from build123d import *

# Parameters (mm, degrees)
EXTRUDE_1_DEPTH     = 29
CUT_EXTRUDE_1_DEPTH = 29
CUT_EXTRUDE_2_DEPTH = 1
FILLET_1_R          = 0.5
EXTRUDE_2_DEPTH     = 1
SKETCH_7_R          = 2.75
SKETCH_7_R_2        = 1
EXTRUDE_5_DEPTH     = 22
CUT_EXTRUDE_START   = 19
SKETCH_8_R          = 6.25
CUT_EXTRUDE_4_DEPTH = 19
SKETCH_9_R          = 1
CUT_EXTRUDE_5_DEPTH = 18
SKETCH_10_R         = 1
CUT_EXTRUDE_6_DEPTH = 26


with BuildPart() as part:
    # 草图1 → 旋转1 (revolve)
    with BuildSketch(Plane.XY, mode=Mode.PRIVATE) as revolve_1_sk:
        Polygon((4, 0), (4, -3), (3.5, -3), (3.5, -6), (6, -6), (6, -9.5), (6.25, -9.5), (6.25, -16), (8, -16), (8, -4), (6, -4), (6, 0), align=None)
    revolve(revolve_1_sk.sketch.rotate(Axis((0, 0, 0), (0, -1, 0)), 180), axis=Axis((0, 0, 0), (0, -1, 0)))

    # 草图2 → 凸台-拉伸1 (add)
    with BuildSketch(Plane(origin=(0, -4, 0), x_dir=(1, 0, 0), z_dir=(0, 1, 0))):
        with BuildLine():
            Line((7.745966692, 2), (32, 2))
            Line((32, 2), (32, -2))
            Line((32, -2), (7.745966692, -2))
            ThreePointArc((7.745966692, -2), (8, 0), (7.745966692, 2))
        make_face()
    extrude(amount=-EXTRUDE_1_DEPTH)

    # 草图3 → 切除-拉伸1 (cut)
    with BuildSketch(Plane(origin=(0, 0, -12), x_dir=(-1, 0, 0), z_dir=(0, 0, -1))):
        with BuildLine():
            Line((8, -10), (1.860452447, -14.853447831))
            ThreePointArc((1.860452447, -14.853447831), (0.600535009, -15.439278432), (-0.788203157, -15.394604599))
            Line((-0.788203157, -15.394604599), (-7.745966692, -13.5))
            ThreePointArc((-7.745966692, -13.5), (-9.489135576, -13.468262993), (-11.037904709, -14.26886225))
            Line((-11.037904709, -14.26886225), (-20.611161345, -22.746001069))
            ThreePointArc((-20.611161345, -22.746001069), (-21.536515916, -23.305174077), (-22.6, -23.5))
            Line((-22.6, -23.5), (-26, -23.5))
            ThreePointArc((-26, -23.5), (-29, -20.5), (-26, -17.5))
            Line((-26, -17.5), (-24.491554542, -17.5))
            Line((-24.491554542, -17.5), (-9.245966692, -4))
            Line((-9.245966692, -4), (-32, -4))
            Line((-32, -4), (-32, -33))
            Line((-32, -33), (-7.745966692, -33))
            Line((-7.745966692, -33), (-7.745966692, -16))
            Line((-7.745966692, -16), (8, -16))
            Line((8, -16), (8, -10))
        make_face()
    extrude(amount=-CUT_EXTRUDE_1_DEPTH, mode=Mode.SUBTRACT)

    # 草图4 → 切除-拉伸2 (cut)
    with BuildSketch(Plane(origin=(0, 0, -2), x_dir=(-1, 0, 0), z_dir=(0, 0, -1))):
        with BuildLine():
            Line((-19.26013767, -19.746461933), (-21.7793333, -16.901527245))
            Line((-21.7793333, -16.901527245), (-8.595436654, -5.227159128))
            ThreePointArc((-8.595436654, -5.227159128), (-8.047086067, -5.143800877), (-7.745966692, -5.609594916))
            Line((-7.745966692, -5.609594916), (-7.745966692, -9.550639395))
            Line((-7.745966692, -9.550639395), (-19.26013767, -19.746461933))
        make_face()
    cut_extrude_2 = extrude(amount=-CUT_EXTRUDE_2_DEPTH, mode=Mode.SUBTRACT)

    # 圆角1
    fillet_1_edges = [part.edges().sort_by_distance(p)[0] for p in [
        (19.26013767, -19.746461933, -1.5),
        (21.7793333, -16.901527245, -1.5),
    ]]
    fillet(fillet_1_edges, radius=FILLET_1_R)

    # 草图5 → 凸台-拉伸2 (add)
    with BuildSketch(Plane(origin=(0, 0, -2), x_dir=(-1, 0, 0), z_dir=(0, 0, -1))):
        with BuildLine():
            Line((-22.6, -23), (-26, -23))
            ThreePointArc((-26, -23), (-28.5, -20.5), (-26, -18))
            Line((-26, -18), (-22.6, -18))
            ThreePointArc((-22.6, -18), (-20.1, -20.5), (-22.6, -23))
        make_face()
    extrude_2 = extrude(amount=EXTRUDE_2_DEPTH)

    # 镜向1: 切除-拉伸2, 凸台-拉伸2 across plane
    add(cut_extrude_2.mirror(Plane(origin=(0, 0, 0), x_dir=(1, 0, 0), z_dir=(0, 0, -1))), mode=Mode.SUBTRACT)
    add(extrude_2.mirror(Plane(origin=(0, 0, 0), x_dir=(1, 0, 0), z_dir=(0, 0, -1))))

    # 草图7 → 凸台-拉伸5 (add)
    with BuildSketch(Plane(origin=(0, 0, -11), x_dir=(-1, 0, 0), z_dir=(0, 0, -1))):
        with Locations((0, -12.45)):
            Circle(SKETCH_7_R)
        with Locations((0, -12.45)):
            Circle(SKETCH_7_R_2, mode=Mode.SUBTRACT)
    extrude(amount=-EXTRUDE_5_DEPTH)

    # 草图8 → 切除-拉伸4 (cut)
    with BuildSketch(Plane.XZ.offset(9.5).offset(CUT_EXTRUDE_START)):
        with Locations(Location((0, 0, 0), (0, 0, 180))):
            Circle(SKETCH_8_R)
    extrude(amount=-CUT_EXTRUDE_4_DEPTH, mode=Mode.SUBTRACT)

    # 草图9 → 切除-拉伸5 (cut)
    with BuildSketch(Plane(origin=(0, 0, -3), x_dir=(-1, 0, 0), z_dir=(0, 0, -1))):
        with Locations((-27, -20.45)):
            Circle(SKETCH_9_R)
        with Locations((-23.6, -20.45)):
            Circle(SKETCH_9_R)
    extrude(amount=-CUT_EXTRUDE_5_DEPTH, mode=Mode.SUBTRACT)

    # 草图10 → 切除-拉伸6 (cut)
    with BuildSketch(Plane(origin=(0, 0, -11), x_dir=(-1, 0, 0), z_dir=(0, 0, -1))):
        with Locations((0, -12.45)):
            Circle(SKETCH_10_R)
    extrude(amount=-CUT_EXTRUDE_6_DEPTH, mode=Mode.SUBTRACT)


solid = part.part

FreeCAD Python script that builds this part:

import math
import FreeCAD as App
import Part
import Sketcher
Q = App.Units.Quantity


def edges_at(feature, points):
    """Names of the edges that pass closest to the given points."""
    edges = feature.Shape.Edges
    near = lambda p: min(range(len(edges)), key=lambda i: edges[i].distToShape(Part.Vertex(*p))[0])
    return sorted({f"Edge{near(p) + 1}" for p in points})


def add_polygon(sketch, points):
    """Adds a closed chain of lines whose ends are joined by coincident constraints."""
    first, n = sketch.GeometryCount, len(points)
    for a, b in zip(points, points[1:] + points[:1]):
        sketch.addGeometry(Part.LineSegment(App.Vector(*a, 0), App.Vector(*b, 0)), False)
    for i in range(n):
        sketch.addConstraint(Sketcher.Constraint("Coincident", first + i, 2, first + (i + 1) % n, 1))

doc = App.newDocument("Part")
body = doc.addObject("PartDesign::Body", "Body")

# Sketch on XY plane
sketch1 = doc.addObject("Sketcher::SketchObject", "Sketch")
body.addObject(sketch1)
sketch1.AttachmentSupport = (doc.XY_Plane, [""])
sketch1.MapMode = "FlatFace"
add_polygon(sketch1, [(4, 0), (4, -3), (3.5, -3), (3.5, -6), (6, -6), (6, -9.5), (6.25, -9.5), (6.25, -16), (8, -16), (8, -4), (6, -4), (6, 0)])  # lines 0-11
sketch1.addConstraint([
    Sketcher.Constraint("Vertical", 0),
    Sketcher.Constraint("Horizontal", 1),
    Sketcher.Constraint("Vertical", 2),
    Sketcher.Constraint("Horizontal", 3),
    Sketcher.Constraint("Vertical", 4),
    Sketcher.Constraint("Horizontal", 5),
    Sketcher.Constraint("Vertical", 6),
    Sketcher.Constraint("Horizontal", 7),
    Sketcher.Constraint("Vertical", 8),
    Sketcher.Constraint("Horizontal", 9),
    Sketcher.Constraint("Vertical", 10),
    Sketcher.Constraint("Horizontal", 11),
    Sketcher.Constraint("PointOnObject", 10, 2, -1),
    Sketcher.Constraint("Vertical", 4, 2, 9, 2),
    Sketcher.Constraint("Equal", 9, 11),
    Sketcher.Constraint("Equal", 0, 2),
    Sketcher.Constraint("DistanceX", 9, 2, 9, 1, Q("2 mm")),
    Sketcher.Constraint("DistanceY", 0, 2, 0, 1, Q("3 mm")),
    Sketcher.Constraint("DistanceY", 8, 1, 8, 2, Q("12 mm")),
    Sketcher.Constraint("DistanceY", 10, 1, 10, 2, Q("4 mm")),
    Sketcher.Constraint("DistanceX", 1, 2, 1, 1, Q("0.5 mm")),
    Sketcher.Constraint("DistanceY", 4, 2, 4, 1, Q("3.5 mm")),
    Sketcher.Constraint("DistanceX", -1, 1, 0, 2, Q("4 mm")),
    Sketcher.Constraint("DistanceX", 5, 1, 5, 2, Q("0.25 mm")),
])
revolution = doc.addObject("PartDesign::Revolution", "Revolution")
body.addObject(revolution)
revolution.Profile = sketch1
revolution.ReferenceAxis = (sketch1, ["V_Axis"])
revolution.Angle = 360

# Sketch on XZ plane
sketch2 = doc.addObject("Sketcher::SketchObject", "Sketch001")
body.addObject(sketch2)
sketch2.AttachmentSupport = (doc.XZ_Plane, [""])
sketch2.MapMode = "FlatFace"
sketch2.AttachmentOffset = App.Placement(App.Vector(0, 0, 4), App.Rotation())
sketch2.addGeometry([
    Part.LineSegment(App.Vector(32, -2, 0), App.Vector(7.7, -2, 0)),
    Part.ArcOfCircle(Part.Circle(App.Vector(0, 0, 0), App.Vector(0, 0, 1), 8), math.radians(-14), math.radians(14)),
    Part.LineSegment(App.Vector(7.7, 2, 0), App.Vector(32, 2, 0)),
    Part.LineSegment(App.Vector(32, 2, 0), App.Vector(32, -2, 0)),
], False)
sketch2.addConstraint([
    Sketcher.Constraint("Coincident", 0, 2, 1, 1),
    Sketcher.Constraint("Coincident", 1, 2, 2, 1),
    Sketcher.Constraint("Coincident", 2, 2, 3, 1),
    Sketcher.Constraint("Coincident", 3, 2, 0, 1),
    Sketcher.Constraint("Horizontal", 0),
    Sketcher.Constraint("Horizontal", 2),
    Sketcher.Constraint("Vertical", 3),
    Sketcher.Constraint("Coincident", 1, 3, -1, 1),
    Sketcher.Constraint("Vertical", 0, 2, 1, 2),
    Sketcher.Constraint("Radius", 1, Q("8 mm")),
    Sketcher.Constraint("DistanceY", 3, 2, 3, 1, Q("4 mm")),
    Sketcher.Constraint("DistanceX", -1, 1, 2, 2, Q("32 mm")),
])
pad1 = doc.addObject("PartDesign::Pad", "Pad")
body.addObject(pad1)
pad1.Profile = sketch2
pad1.Length = 29

# Sketch on XY plane
sketch3 = doc.addObject("Sketcher::SketchObject", "Sketch002")
body.addObject(sketch3)
sketch3.AttachmentSupport = (doc.XY_Plane, [""])
sketch3.MapMode = "FlatFace"
sketch3.AttachmentOffset = App.Placement(App.Vector(0, 0, -12), App.Rotation())
sketch3.addGeometry([
    Part.LineSegment(App.Vector(-8, -10, 0), App.Vector(-1.9, -14.9, 0)),  # 0
    Part.ArcOfCircle(Part.Circle(App.Vector(0, -12.5, 0), App.Vector(0, 0, 1), 3), math.radians(-128), math.radians(-75)),  # 1
    Part.LineSegment(App.Vector(0.8, -15.4, 0), App.Vector(7.7, -13.5, 0)),  # 2
    Part.ArcOfCircle(Part.Circle(App.Vector(8.7, -16.9, 0), App.Vector(0, 0, 1), 3.6), math.radians(48), math.radians(105)),  # 3
    Part.LineSegment(App.Vector(11, -14.3, 0), App.Vector(20.6, -22.7, 0)),  # 4
    Part.ArcOfCircle(Part.Circle(App.Vector(22.6, -20.5, 0), App.Vector(0, 0, 1), 3), math.radians(-132), math.radians(-90)),  # 5
    Part.LineSegment(App.Vector(22.6, -23.5, 0), App.Vector(26, -23.5, 0)),  # 6
    Part.ArcOfCircle(Part.Circle(App.Vector(26, -20.5, 0), App.Vector(0, 0, 1), 3), math.radians(-90), math.radians(90)),  # 7
    Part.LineSegment(App.Vector(26, -17.5, 0), App.Vector(24.5, -17.5, 0)),  # 8
    Part.LineSegment(App.Vector(24.5, -17.5, 0), App.Vector(9.2, -4, 0)),  # 9
    Part.LineSegment(App.Vector(9.2, -4, 0), App.Vector(32, -4, 0)),  # 10
    Part.LineSegment(App.Vector(32, -4, 0), App.Vector(32, -33, 0)),  # 11
    Part.LineSegment(App.Vector(32, -33, 0), App.Vector(7.7, -33, 0)),  # 12
    Part.LineSegment(App.Vector(7.7, -33, 0), App.Vector(7.7, -16, 0)),  # 13
    Part.LineSegment(App.Vector(7.7, -16, 0), App.Vector(-8, -16, 0)),  # 14
    Part.LineSegment(App.Vector(-8, -16, 0), App.Vector(-8, -10, 0)),  # 15
], False)
sketch3.addConstraint([
    Sketcher.Constraint("Tangent", 0, 2, 1, 1),
    Sketcher.Constraint("Tangent", 1, 2, 2, 1),
    Sketcher.Constraint("Tangent", 2, 2, 3, 2),
    Sketcher.Constraint("Tangent", 3, 1, 4, 1),
    Sketcher.Constraint("Tangent", 4, 2, 5, 1),
    Sketcher.Constraint("Tangent", 5, 2, 6, 1),
    Sketcher.Constraint("Tangent", 6, 2, 7, 1),
    Sketcher.Constraint("Tangent", 7, 2, 8, 1),
    Sketcher.Constraint("Coincident", 8, 2, 9, 1),
    Sketcher.Constraint("Coincident", 9, 2, 10, 1),
    Sketcher.Constraint("Coincident", 10, 2, 11, 1),
    Sketcher.Constraint("Coincident", 11, 2, 12, 1),
    Sketcher.Constraint("Coincident", 12, 2, 13, 1),
    Sketcher.Constraint("Coincident", 13, 2, 14, 1),
    Sketcher.Constraint("Coincident", 14, 2, 15, 1),
    Sketcher.Constraint("Coincident", 15, 2, 0, 1),
    Sketcher.Constraint("Horizontal", 6),
    Sketcher.Constraint("Horizontal", 8),
    Sketcher.Constraint("Horizontal", 10),
    Sketcher.Constraint("Vertical", 11),
    Sketcher.Constraint("Horizontal", 12),
    Sketcher.Constraint("Vertical", 13),
    Sketcher.Constraint("Horizontal", 14),
    Sketcher.Constraint("Vertical", 15),
    Sketcher.Constraint("Equal", 1, 5),
    Sketcher.Constraint("Equal", 5, 7),
    Sketcher.Constraint("PointOnObject", 1, 3, -2),
    Sketcher.Constraint("Parallel", 4, 9),
    Sketcher.Constraint("Vertical", 2, 2, 12, 2),
    Sketcher.Constraint("Radius", 1, Q("3 mm")),
    Sketcher.Constraint("DistanceY", 11, 2, 11, 1, Q("29 mm")),
    Sketcher.Constraint("DistanceY", 13, 1, 13, 2, Q("17 mm")),
    Sketcher.Constraint("DistanceY", 15, 1, 15, 2, Q("6 mm")),
    Sketcher.Constraint("DistanceX", 6, 1, 6, 2, Q("3.4 mm")),
    Sketcher.Constraint("DistanceX", -1, 1, 7, 3, Q("26 mm")),
    Sketcher.Constraint("DistanceY", 9, 2, -1, 1, Q("4 mm")),
    Sketcher.Constraint("DistanceX", -1, 1, 10, 2, Q("32 mm")),
    Sketcher.Constraint("DistanceX", 14, 2, -1, 1, Q("8 mm")),
    Sketcher.Constraint("DistanceY", 5, 3, 1, 3, Q("8 mm")),
    Sketcher.Constraint("DistanceY", 2, 2, 1, 3, Q("1 mm")),
    Sketcher.Constraint("DistanceY", 1, 3, -1, 1, Q("12.5 mm")),
    Sketcher.Constraint("DistanceX", 2, 2, 9, 2, Q("1.5 mm")),
    Sketcher.Constraint("DistanceY", 4, 2, -1, 1, Q("22.746001 mm")),
    Sketcher.Constraint("Radius", 3, Q("3.556235 mm")),
])
pocket1 = doc.addObject("PartDesign::Pocket", "Pocket")
body.addObject(pocket1)
pocket1.Profile = sketch3
pocket1.Length = 29
pocket1.Reversed = True

# Sketch on XY plane
sketch4 = doc.addObject("Sketcher::SketchObject", "Sketch003")
body.addObject(sketch4)
sketch4.AttachmentSupport = (doc.XY_Plane, [""])
sketch4.MapMode = "FlatFace"
sketch4.AttachmentOffset = App.Placement(App.Vector(0, 0, -2), App.Rotation())
sketch4.addGeometry([
    Part.LineSegment(App.Vector(21.8, -16.9, 0), App.Vector(19.3, -19.7, 0)),  # 0
    Part.LineSegment(App.Vector(19.3, -19.7, 0), App.Vector(7.7, -9.6, 0)),  # 1
    Part.LineSegment(App.Vector(7.7, -9.6, 0), App.Vector(7.7, -5.6, 0)),  # 2
    Part.ArcOfCircle(Part.Circle(App.Vector(8.3, -5.6, 0), App.Vector(0, 0, 1), 0.5), math.radians(48), math.radians(180)),  # 3
    Part.LineSegment(App.Vector(8.6, -5.2, 0), App.Vector(21.8, -16.9, 0)),  # 4
], False)
sketch4.addConstraint([
    Sketcher.Constraint("Coincident", 0, 2, 1, 1),
    Sketcher.Constraint("Coincident", 1, 2, 2, 1),
    Sketcher.Constraint("Tangent", 2, 2, 3, 2),
    Sketcher.Constraint("Tangent", 3, 1, 4, 1),
    Sketcher.Constraint("Coincident", 4, 2, 0, 1),
    Sketcher.Constraint("Vertical", 2),
    Sketcher.Constraint("Perpendicular", 0, 1),
    Sketcher.Constraint("Parallel", 1, 4),
    Sketcher.Constraint("Distance", 0, Q("3.8 mm")),
    Sketcher.Constraint("Radius", 3, Q("0.510822 mm")),
    Sketcher.Constraint("DistanceX", 3, 1, 0, 2, Q("10.664701 mm")),
    Sketcher.Constraint("DistanceY", 2, 1, 2, 2, Q("3.941044 mm")),
    Sketcher.Constraint("DistanceX", -1, 1, 3, 3, Q("8.256789 mm")),
    Sketcher.Constraint("DistanceY", 0, 2, -1, 1, Q("19.746462 mm")),
])
pocket2 = doc.addObject("PartDesign::Pocket", "Pocket001")
body.addObject(pocket2)
pocket2.Profile = sketch4
pocket2.Length = 1
pocket2.Reversed = True
doc.recompute()

fillet = doc.addObject("PartDesign::Fillet", "Fillet")
body.addObject(fillet)
fillet.Base = (pocket2, edges_at(pocket2, [(19.26, -19.746, -1.5), (21.779, -16.902, -1.5)]))
fillet.Radius = 0.5

# Sketch on XY plane
sketch5 = doc.addObject("Sketcher::SketchObject", "Sketch004")
body.addObject(sketch5)
sketch5.AttachmentSupport = (doc.XY_Plane, [""])
sketch5.MapMode = "FlatFace"
sketch5.AttachmentOffset = App.Placement(App.Vector(0, 0, -2), App.Rotation())
sketch5.addGeometry([
    Part.LineSegment(App.Vector(26, -23, 0), App.Vector(22.6, -23, 0)),
    Part.ArcOfCircle(Part.Circle(App.Vector(22.6, -20.5, 0), App.Vector(0, 0, 1), 2.5), math.radians(90), math.radians(270)),
    Part.LineSegment(App.Vector(22.6, -18, 0), App.Vector(26, -18, 0)),
    Part.ArcOfCircle(Part.Circle(App.Vector(26, -20.5, 0), App.Vector(0, 0, 1), 2.5), math.radians(-90), math.radians(90)),
], False)
sketch5.addConstraint([
    Sketcher.Constraint("Tangent", 0, 2, 1, 2),
    Sketcher.Constraint("Tangent", 1, 1, 2, 1),
    Sketcher.Constraint("Tangent", 2, 2, 3, 2),
    Sketcher.Constraint("Tangent", 3, 1, 0, 1),
    Sketcher.Constraint("Horizontal", 0),
    Sketcher.Constraint("Horizontal", 2),
    Sketcher.Constraint("Radius", 1, Q("2.5 mm")),
    Sketcher.Constraint("DistanceX", 0, 2, 0, 1, Q("3.4 mm")),
    Sketcher.Constraint("DistanceX", -1, 1, 3, 3, Q("26 mm")),
    Sketcher.Constraint("DistanceY", 0, 2, -1, 1, Q("23 mm")),
])
pad2 = doc.addObject("PartDesign::Pad", "Pad001")
body.addObject(pad2)
pad2.Profile = sketch5
pad2.Length = 1
pad2.Reversed = True
doc.recompute()

mirrored = doc.addObject("PartDesign::Mirrored", "Mirrored")
body.addObject(mirrored)
mirrored.Originals = [pocket2, pad2]
mirrored.MirrorPlane = (doc.XY_Plane, [""])
body.Tip = mirrored

# Sketch on XY plane
sketch6 = doc.addObject("Sketcher::SketchObject", "Sketch005")
body.addObject(sketch6)
sketch6.AttachmentSupport = (doc.XY_Plane, [""])
sketch6.MapMode = "FlatFace"
sketch6.AttachmentOffset = App.Placement(App.Vector(0, 0, -11), App.Rotation())
sketch6.addGeometry([
    Part.Circle(App.Vector(0, -12.4, 0), App.Vector(0, 0, 1), 2.8),
    Part.Circle(App.Vector(0, -12.4, 0), App.Vector(0, 0, 1), 1),
], False)
sketch6.addConstraint([
    Sketcher.Constraint("Coincident", 1, 3, 0, 3),
    Sketcher.Constraint("PointOnObject", 0, 3, -2),
    Sketcher.Constraint("Diameter", 1, Q("2 mm")),
    Sketcher.Constraint("Diameter", 0, Q("5.5 mm")),
    Sketcher.Constraint("DistanceY", 0, 3, -1, 1, Q("12.45 mm")),
])
pad3 = doc.addObject("PartDesign::Pad", "Pad002")
body.addObject(pad3)
pad3.Profile = sketch6
pad3.Length = 22

# Sketch on XZ plane
sketch7 = doc.addObject("Sketcher::SketchObject", "Sketch006")
body.addObject(sketch7)
sketch7.AttachmentSupport = (doc.XZ_Plane, [""])
sketch7.MapMode = "FlatFace"
sketch7.AttachmentOffset = App.Placement(App.Vector(0, 0, 28.5), App.Rotation())
sketch7.addGeometry(Part.Circle(App.Vector(0, 0, 0), App.Vector(0, 0, 1), 6), False)
sketch7.addConstraint([
    Sketcher.Constraint("Coincident", 0, 3, -1, 1),
    Sketcher.Constraint("Diameter", 0, Q("12.5 mm")),
])
pocket3 = doc.addObject("PartDesign::Pocket", "Pocket002")
body.addObject(pocket3)
pocket3.Profile = sketch7
pocket3.Length = 19

# Sketch on XY plane
sketch8 = doc.addObject("Sketcher::SketchObject", "Sketch007")
body.addObject(sketch8)
sketch8.AttachmentSupport = (doc.XY_Plane, [""])
sketch8.MapMode = "FlatFace"
sketch8.AttachmentOffset = App.Placement(App.Vector(0, 0, -3), App.Rotation())
sketch8.addGeometry([
    Part.Circle(App.Vector(27, -20.4, 0), App.Vector(0, 0, 1), 1),
    Part.Circle(App.Vector(23.6, -20.4, 0), App.Vector(0, 0, 1), 1),
], False)
sketch8.addConstraint([
    Sketcher.Constraint("Equal", 0, 1),
    Sketcher.Constraint("Horizontal", 0, 3, 1, 3),
    Sketcher.Constraint("Diameter", 0, Q("2 mm")),
    Sketcher.Constraint("DistanceX", -1, 1, 0, 3, Q("27 mm")),
    Sketcher.Constraint("DistanceX", -1, 1, 1, 3, Q("23.6 mm")),
    Sketcher.Constraint("DistanceY", 0, 3, -1, 1, Q("20.45 mm")),
])
pocket4 = doc.addObject("PartDesign::Pocket", "Pocket003")
body.addObject(pocket4)
pocket4.Profile = sketch8
pocket4.Length = 18
pocket4.Reversed = True

# Sketch on XY plane
sketch9 = doc.addObject("Sketcher::SketchObject", "Sketch008")
body.addObject(sketch9)
sketch9.AttachmentSupport = (doc.XY_Plane, [""])
sketch9.MapMode = "FlatFace"
sketch9.AttachmentOffset = App.Placement(App.Vector(0, 0, -11), App.Rotation())
sketch9.addGeometry(Part.Circle(App.Vector(0, -12.4, 0), App.Vector(0, 0, 1), 1), False)
sketch9.addConstraint([
    Sketcher.Constraint("PointOnObject", 0, 3, -2),
    Sketcher.Constraint("Diameter", 0, Q("2 mm")),
    Sketcher.Constraint("DistanceY", 0, 3, -1, 1, Q("12.45 mm")),
])
pocket5 = doc.addObject("PartDesign::Pocket", "Pocket004")
body.addObject(pocket5)
pocket5.Profile = sketch9
pocket5.Length = 26
pocket5.Reversed = True

doc.recompute()
